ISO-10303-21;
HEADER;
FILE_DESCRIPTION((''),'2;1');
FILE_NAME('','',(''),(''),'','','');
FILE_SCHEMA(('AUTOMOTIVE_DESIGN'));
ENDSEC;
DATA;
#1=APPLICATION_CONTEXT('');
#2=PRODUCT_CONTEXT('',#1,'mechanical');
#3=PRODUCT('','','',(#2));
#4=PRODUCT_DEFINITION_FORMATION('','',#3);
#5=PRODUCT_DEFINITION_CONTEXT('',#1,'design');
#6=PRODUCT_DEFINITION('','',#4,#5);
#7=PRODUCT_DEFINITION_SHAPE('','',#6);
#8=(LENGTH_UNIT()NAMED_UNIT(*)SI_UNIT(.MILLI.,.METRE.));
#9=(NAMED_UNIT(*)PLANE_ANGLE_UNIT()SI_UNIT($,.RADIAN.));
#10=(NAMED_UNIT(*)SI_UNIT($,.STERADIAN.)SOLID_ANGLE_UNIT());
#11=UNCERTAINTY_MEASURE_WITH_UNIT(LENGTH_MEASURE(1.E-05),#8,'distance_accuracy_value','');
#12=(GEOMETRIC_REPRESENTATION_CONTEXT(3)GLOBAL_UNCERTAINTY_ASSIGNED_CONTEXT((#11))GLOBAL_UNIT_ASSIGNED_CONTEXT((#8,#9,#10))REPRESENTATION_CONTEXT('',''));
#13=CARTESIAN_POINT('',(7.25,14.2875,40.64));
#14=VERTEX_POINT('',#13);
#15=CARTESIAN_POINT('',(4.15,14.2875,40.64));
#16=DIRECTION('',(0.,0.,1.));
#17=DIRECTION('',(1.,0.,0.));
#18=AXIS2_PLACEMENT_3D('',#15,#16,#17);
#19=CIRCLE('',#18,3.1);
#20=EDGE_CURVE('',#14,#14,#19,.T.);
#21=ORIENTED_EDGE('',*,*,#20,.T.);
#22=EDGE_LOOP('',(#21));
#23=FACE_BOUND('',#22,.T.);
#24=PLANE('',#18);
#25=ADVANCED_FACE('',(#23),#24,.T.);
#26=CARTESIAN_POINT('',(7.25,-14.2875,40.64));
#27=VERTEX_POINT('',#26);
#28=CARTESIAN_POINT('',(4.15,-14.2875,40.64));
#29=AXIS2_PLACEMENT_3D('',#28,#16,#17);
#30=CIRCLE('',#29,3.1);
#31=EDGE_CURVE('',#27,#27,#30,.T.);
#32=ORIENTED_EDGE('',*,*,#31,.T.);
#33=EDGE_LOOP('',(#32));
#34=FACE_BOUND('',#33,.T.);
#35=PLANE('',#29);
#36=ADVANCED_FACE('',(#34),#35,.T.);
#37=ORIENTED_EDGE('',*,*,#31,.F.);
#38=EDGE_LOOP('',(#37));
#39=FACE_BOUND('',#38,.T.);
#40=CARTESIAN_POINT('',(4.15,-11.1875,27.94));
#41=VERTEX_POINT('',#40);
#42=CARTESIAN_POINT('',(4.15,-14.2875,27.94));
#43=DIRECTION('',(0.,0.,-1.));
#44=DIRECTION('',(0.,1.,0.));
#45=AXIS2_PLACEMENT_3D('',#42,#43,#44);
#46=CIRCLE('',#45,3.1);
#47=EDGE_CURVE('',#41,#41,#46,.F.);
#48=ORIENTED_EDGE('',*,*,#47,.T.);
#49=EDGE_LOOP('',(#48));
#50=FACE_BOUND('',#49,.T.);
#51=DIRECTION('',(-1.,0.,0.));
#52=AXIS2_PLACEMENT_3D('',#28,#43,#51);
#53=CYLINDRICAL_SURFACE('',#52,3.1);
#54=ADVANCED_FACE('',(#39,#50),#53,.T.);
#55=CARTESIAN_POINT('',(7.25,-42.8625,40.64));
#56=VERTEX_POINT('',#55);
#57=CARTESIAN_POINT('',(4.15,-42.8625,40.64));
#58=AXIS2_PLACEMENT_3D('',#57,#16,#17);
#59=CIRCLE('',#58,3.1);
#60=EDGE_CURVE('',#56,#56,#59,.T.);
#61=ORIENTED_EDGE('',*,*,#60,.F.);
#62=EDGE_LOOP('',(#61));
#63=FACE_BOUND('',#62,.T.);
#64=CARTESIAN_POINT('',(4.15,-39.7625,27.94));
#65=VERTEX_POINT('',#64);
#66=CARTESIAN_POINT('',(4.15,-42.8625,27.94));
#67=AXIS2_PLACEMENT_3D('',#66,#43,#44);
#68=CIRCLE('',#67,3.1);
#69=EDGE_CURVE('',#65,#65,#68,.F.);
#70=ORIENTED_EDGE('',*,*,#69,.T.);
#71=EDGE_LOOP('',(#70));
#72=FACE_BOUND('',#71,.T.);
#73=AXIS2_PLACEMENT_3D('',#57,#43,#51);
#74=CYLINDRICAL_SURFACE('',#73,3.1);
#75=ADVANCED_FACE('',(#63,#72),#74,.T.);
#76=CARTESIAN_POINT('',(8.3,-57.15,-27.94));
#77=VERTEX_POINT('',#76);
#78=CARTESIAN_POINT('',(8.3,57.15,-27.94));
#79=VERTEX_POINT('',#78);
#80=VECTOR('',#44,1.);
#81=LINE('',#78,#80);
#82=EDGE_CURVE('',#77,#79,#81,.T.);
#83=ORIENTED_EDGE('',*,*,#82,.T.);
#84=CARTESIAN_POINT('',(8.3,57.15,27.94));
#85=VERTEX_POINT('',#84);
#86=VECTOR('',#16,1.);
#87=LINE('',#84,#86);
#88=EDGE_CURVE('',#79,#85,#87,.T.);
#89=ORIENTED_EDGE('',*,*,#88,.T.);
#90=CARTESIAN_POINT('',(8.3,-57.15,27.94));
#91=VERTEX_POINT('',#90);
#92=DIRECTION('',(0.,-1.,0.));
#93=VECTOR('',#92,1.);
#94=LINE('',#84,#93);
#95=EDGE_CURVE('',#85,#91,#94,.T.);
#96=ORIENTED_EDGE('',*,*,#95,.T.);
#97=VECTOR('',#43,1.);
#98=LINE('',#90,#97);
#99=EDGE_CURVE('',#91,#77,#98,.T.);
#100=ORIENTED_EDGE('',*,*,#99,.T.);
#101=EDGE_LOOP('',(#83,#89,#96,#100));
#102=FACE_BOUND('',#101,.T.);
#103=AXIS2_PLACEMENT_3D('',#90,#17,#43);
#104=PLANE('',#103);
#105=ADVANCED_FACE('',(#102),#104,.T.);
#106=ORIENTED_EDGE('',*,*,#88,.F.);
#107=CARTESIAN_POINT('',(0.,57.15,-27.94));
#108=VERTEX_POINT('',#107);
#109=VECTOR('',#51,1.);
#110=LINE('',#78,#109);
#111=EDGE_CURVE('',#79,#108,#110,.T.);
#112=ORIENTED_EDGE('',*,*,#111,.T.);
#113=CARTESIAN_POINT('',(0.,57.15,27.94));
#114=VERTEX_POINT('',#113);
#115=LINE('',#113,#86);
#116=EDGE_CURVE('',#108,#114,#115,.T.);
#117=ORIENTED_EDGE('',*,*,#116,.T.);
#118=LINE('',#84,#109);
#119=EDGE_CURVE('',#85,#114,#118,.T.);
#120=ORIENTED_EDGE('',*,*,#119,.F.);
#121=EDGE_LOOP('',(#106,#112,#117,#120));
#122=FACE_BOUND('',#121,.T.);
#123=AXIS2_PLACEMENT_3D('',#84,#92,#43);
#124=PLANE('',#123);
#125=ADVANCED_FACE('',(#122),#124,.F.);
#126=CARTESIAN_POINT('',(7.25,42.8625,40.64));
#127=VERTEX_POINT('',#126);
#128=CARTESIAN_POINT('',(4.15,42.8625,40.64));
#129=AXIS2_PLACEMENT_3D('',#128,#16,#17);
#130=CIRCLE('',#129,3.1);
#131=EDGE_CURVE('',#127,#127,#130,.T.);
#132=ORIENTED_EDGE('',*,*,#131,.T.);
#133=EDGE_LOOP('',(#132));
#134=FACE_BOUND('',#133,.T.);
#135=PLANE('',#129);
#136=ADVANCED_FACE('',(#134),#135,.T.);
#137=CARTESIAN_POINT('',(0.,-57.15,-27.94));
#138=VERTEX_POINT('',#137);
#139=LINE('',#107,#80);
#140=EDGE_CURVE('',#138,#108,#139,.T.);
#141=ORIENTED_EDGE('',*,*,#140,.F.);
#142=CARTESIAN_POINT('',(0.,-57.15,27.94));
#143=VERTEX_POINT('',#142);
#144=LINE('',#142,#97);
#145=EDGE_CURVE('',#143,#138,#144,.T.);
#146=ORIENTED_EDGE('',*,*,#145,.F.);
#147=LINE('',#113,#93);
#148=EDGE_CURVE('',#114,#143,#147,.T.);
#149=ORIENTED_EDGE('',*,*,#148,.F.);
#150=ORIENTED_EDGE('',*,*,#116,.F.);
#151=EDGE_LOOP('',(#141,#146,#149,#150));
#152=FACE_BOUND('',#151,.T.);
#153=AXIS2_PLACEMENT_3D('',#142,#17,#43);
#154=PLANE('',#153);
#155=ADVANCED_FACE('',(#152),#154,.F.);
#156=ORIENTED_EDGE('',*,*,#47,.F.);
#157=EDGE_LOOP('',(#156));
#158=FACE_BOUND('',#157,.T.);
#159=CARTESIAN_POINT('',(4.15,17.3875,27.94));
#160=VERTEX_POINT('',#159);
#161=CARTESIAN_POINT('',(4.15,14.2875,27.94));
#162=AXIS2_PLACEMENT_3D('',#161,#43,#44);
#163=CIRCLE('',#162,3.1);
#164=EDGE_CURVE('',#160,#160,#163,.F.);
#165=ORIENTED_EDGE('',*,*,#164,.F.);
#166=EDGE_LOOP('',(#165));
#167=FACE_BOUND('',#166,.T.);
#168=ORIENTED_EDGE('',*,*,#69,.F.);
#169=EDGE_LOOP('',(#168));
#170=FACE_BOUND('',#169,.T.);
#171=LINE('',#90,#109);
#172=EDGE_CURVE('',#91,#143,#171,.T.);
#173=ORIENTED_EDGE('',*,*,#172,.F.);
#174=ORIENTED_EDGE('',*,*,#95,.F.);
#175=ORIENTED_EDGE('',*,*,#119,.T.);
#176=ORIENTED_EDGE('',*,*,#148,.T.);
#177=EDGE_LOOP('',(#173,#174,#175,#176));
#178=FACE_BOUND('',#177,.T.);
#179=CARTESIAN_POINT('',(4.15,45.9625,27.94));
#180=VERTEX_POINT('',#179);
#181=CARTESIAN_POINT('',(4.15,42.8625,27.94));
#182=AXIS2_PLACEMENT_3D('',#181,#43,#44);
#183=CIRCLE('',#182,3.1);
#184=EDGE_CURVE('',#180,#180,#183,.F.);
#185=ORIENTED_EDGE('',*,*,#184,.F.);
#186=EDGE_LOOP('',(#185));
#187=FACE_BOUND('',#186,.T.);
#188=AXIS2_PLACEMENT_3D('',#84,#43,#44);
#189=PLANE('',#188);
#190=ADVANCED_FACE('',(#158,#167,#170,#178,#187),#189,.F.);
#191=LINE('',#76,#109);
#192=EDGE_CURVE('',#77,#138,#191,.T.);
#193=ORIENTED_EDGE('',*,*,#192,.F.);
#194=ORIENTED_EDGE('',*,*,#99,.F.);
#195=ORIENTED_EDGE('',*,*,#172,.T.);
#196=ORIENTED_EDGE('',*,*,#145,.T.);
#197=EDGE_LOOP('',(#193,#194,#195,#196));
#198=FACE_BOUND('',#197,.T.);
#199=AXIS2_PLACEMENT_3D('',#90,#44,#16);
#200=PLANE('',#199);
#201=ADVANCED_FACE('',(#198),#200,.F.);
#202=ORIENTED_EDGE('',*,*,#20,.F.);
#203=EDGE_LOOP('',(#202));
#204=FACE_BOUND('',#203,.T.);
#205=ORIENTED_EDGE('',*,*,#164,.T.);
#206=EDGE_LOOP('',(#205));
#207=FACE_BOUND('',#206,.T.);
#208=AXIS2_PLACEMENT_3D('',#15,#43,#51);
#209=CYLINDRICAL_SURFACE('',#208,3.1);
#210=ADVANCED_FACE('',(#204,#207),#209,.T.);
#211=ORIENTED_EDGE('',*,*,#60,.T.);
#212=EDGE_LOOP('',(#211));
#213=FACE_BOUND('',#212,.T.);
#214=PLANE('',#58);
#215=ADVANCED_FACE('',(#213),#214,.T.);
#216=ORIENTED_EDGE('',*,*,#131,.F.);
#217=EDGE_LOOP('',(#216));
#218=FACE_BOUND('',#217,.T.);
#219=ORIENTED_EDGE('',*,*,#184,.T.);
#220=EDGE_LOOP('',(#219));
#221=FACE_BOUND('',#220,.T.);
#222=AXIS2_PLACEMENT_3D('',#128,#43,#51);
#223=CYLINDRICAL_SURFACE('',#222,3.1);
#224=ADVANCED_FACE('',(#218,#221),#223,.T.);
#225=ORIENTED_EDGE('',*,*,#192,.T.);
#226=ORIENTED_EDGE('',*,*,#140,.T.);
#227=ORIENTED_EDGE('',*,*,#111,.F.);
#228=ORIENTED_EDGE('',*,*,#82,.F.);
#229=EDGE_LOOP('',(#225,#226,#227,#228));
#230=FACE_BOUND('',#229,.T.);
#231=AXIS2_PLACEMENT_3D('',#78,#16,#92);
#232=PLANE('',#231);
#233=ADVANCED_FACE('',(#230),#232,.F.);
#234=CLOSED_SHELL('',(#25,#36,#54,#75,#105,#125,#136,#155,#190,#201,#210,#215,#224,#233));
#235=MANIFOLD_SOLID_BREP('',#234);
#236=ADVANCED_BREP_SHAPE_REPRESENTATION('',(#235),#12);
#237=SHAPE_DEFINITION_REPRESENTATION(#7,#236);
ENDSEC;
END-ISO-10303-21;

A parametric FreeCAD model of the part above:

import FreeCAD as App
import Part
import Sketcher

V = App.Vector
Q = App.Units.Quantity


def add_polygon(sketch, points):
    """Adds a closed chain of lines whose ends are joined by coincident constraints."""
    first, n = sketch.GeometryCount, len(points)
    for a, b in zip(points, points[1:] + points[:1]):
        sketch.addGeometry(Part.LineSegment(App.Vector(*a, 0), App.Vector(*b, 0)), False)
    for i in range(n):
        sketch.addConstraint(Sketcher.Constraint("Coincident", first + i, 2, first + (i + 1) % n, 1))

doc = App.newDocument("Part")
body = doc.addObject("PartDesign::Body", "Body")

sketch1 = body.newObject("Sketcher::SketchObject", "Sketch")
sketch1.AttachmentSupport = (doc.getObject("YZ_Plane"), [""])
sketch1.MapMode = "FlatFace"
add_polygon(sketch1, [(57.15, 27.94), (-57.15, 27.94), (-57.15, -27.94), (57.15, -27.94)])
sketch1.addConstraint([
    Sketcher.Constraint("Horizontal", 0),
    Sketcher.Constraint("Vertical", 1),
    Sketcher.Constraint("Horizontal", 2),
    Sketcher.Constraint("Vertical", 3),
    Sketcher.Constraint("Symmetric", 0, 2, 2, 2, -1, 1),
    Sketcher.Constraint("DistanceX", 0, 2, 0, 1, Q("4.5 in")),
    Sketcher.Constraint("DistanceY", 1, 2, 1, 1, Q("2.2 in")),
])
pad1 = body.newObject("PartDesign::Pad", "Pad")
pad1.Profile = sketch1
pad1.Length = 8.3

sketch2 = body.newObject("Sketcher::SketchObject", "Sketch001")
sketch2.AttachmentSupport = (doc.getObject("XY_Plane"), [""])
sketch2.MapMode = "FlatFace"
sketch2.AttachmentOffset = App.Placement(V(0, 0, 1.1 * 25.4), App.Rotation())
sketch2.addGeometry(Part.Circle(V(4.15, -42.8625, 0), V(0, 0, 1), 3.1), False)
sketch2.addConstraint([
    Sketcher.Constraint("Diameter", 0, 6.2),
    Sketcher.Constraint("DistanceY", 0, 3, -1, 1, Q("1.6875 in")),
    Sketcher.Constraint("DistanceX", -1, 1, 0, 3, 4.15),
])
pad2 = body.newObject("PartDesign::Pad", "Pad001")
pad2.Profile = sketch2
pad2.Length = Q("0.5 in")
doc.recompute()

linearpattern = body.newObject("PartDesign::LinearPattern", "LinearPattern")
linearpattern.Originals = [pad2]
linearpattern.Direction = (doc.getObject("Y_Axis"), [""])
linearpattern.Mode = "offset"
linearpattern.Offset = Q("1.125 in")
linearpattern.Occurrences = 4
body.Tip = linearpattern

doc.recompute()
